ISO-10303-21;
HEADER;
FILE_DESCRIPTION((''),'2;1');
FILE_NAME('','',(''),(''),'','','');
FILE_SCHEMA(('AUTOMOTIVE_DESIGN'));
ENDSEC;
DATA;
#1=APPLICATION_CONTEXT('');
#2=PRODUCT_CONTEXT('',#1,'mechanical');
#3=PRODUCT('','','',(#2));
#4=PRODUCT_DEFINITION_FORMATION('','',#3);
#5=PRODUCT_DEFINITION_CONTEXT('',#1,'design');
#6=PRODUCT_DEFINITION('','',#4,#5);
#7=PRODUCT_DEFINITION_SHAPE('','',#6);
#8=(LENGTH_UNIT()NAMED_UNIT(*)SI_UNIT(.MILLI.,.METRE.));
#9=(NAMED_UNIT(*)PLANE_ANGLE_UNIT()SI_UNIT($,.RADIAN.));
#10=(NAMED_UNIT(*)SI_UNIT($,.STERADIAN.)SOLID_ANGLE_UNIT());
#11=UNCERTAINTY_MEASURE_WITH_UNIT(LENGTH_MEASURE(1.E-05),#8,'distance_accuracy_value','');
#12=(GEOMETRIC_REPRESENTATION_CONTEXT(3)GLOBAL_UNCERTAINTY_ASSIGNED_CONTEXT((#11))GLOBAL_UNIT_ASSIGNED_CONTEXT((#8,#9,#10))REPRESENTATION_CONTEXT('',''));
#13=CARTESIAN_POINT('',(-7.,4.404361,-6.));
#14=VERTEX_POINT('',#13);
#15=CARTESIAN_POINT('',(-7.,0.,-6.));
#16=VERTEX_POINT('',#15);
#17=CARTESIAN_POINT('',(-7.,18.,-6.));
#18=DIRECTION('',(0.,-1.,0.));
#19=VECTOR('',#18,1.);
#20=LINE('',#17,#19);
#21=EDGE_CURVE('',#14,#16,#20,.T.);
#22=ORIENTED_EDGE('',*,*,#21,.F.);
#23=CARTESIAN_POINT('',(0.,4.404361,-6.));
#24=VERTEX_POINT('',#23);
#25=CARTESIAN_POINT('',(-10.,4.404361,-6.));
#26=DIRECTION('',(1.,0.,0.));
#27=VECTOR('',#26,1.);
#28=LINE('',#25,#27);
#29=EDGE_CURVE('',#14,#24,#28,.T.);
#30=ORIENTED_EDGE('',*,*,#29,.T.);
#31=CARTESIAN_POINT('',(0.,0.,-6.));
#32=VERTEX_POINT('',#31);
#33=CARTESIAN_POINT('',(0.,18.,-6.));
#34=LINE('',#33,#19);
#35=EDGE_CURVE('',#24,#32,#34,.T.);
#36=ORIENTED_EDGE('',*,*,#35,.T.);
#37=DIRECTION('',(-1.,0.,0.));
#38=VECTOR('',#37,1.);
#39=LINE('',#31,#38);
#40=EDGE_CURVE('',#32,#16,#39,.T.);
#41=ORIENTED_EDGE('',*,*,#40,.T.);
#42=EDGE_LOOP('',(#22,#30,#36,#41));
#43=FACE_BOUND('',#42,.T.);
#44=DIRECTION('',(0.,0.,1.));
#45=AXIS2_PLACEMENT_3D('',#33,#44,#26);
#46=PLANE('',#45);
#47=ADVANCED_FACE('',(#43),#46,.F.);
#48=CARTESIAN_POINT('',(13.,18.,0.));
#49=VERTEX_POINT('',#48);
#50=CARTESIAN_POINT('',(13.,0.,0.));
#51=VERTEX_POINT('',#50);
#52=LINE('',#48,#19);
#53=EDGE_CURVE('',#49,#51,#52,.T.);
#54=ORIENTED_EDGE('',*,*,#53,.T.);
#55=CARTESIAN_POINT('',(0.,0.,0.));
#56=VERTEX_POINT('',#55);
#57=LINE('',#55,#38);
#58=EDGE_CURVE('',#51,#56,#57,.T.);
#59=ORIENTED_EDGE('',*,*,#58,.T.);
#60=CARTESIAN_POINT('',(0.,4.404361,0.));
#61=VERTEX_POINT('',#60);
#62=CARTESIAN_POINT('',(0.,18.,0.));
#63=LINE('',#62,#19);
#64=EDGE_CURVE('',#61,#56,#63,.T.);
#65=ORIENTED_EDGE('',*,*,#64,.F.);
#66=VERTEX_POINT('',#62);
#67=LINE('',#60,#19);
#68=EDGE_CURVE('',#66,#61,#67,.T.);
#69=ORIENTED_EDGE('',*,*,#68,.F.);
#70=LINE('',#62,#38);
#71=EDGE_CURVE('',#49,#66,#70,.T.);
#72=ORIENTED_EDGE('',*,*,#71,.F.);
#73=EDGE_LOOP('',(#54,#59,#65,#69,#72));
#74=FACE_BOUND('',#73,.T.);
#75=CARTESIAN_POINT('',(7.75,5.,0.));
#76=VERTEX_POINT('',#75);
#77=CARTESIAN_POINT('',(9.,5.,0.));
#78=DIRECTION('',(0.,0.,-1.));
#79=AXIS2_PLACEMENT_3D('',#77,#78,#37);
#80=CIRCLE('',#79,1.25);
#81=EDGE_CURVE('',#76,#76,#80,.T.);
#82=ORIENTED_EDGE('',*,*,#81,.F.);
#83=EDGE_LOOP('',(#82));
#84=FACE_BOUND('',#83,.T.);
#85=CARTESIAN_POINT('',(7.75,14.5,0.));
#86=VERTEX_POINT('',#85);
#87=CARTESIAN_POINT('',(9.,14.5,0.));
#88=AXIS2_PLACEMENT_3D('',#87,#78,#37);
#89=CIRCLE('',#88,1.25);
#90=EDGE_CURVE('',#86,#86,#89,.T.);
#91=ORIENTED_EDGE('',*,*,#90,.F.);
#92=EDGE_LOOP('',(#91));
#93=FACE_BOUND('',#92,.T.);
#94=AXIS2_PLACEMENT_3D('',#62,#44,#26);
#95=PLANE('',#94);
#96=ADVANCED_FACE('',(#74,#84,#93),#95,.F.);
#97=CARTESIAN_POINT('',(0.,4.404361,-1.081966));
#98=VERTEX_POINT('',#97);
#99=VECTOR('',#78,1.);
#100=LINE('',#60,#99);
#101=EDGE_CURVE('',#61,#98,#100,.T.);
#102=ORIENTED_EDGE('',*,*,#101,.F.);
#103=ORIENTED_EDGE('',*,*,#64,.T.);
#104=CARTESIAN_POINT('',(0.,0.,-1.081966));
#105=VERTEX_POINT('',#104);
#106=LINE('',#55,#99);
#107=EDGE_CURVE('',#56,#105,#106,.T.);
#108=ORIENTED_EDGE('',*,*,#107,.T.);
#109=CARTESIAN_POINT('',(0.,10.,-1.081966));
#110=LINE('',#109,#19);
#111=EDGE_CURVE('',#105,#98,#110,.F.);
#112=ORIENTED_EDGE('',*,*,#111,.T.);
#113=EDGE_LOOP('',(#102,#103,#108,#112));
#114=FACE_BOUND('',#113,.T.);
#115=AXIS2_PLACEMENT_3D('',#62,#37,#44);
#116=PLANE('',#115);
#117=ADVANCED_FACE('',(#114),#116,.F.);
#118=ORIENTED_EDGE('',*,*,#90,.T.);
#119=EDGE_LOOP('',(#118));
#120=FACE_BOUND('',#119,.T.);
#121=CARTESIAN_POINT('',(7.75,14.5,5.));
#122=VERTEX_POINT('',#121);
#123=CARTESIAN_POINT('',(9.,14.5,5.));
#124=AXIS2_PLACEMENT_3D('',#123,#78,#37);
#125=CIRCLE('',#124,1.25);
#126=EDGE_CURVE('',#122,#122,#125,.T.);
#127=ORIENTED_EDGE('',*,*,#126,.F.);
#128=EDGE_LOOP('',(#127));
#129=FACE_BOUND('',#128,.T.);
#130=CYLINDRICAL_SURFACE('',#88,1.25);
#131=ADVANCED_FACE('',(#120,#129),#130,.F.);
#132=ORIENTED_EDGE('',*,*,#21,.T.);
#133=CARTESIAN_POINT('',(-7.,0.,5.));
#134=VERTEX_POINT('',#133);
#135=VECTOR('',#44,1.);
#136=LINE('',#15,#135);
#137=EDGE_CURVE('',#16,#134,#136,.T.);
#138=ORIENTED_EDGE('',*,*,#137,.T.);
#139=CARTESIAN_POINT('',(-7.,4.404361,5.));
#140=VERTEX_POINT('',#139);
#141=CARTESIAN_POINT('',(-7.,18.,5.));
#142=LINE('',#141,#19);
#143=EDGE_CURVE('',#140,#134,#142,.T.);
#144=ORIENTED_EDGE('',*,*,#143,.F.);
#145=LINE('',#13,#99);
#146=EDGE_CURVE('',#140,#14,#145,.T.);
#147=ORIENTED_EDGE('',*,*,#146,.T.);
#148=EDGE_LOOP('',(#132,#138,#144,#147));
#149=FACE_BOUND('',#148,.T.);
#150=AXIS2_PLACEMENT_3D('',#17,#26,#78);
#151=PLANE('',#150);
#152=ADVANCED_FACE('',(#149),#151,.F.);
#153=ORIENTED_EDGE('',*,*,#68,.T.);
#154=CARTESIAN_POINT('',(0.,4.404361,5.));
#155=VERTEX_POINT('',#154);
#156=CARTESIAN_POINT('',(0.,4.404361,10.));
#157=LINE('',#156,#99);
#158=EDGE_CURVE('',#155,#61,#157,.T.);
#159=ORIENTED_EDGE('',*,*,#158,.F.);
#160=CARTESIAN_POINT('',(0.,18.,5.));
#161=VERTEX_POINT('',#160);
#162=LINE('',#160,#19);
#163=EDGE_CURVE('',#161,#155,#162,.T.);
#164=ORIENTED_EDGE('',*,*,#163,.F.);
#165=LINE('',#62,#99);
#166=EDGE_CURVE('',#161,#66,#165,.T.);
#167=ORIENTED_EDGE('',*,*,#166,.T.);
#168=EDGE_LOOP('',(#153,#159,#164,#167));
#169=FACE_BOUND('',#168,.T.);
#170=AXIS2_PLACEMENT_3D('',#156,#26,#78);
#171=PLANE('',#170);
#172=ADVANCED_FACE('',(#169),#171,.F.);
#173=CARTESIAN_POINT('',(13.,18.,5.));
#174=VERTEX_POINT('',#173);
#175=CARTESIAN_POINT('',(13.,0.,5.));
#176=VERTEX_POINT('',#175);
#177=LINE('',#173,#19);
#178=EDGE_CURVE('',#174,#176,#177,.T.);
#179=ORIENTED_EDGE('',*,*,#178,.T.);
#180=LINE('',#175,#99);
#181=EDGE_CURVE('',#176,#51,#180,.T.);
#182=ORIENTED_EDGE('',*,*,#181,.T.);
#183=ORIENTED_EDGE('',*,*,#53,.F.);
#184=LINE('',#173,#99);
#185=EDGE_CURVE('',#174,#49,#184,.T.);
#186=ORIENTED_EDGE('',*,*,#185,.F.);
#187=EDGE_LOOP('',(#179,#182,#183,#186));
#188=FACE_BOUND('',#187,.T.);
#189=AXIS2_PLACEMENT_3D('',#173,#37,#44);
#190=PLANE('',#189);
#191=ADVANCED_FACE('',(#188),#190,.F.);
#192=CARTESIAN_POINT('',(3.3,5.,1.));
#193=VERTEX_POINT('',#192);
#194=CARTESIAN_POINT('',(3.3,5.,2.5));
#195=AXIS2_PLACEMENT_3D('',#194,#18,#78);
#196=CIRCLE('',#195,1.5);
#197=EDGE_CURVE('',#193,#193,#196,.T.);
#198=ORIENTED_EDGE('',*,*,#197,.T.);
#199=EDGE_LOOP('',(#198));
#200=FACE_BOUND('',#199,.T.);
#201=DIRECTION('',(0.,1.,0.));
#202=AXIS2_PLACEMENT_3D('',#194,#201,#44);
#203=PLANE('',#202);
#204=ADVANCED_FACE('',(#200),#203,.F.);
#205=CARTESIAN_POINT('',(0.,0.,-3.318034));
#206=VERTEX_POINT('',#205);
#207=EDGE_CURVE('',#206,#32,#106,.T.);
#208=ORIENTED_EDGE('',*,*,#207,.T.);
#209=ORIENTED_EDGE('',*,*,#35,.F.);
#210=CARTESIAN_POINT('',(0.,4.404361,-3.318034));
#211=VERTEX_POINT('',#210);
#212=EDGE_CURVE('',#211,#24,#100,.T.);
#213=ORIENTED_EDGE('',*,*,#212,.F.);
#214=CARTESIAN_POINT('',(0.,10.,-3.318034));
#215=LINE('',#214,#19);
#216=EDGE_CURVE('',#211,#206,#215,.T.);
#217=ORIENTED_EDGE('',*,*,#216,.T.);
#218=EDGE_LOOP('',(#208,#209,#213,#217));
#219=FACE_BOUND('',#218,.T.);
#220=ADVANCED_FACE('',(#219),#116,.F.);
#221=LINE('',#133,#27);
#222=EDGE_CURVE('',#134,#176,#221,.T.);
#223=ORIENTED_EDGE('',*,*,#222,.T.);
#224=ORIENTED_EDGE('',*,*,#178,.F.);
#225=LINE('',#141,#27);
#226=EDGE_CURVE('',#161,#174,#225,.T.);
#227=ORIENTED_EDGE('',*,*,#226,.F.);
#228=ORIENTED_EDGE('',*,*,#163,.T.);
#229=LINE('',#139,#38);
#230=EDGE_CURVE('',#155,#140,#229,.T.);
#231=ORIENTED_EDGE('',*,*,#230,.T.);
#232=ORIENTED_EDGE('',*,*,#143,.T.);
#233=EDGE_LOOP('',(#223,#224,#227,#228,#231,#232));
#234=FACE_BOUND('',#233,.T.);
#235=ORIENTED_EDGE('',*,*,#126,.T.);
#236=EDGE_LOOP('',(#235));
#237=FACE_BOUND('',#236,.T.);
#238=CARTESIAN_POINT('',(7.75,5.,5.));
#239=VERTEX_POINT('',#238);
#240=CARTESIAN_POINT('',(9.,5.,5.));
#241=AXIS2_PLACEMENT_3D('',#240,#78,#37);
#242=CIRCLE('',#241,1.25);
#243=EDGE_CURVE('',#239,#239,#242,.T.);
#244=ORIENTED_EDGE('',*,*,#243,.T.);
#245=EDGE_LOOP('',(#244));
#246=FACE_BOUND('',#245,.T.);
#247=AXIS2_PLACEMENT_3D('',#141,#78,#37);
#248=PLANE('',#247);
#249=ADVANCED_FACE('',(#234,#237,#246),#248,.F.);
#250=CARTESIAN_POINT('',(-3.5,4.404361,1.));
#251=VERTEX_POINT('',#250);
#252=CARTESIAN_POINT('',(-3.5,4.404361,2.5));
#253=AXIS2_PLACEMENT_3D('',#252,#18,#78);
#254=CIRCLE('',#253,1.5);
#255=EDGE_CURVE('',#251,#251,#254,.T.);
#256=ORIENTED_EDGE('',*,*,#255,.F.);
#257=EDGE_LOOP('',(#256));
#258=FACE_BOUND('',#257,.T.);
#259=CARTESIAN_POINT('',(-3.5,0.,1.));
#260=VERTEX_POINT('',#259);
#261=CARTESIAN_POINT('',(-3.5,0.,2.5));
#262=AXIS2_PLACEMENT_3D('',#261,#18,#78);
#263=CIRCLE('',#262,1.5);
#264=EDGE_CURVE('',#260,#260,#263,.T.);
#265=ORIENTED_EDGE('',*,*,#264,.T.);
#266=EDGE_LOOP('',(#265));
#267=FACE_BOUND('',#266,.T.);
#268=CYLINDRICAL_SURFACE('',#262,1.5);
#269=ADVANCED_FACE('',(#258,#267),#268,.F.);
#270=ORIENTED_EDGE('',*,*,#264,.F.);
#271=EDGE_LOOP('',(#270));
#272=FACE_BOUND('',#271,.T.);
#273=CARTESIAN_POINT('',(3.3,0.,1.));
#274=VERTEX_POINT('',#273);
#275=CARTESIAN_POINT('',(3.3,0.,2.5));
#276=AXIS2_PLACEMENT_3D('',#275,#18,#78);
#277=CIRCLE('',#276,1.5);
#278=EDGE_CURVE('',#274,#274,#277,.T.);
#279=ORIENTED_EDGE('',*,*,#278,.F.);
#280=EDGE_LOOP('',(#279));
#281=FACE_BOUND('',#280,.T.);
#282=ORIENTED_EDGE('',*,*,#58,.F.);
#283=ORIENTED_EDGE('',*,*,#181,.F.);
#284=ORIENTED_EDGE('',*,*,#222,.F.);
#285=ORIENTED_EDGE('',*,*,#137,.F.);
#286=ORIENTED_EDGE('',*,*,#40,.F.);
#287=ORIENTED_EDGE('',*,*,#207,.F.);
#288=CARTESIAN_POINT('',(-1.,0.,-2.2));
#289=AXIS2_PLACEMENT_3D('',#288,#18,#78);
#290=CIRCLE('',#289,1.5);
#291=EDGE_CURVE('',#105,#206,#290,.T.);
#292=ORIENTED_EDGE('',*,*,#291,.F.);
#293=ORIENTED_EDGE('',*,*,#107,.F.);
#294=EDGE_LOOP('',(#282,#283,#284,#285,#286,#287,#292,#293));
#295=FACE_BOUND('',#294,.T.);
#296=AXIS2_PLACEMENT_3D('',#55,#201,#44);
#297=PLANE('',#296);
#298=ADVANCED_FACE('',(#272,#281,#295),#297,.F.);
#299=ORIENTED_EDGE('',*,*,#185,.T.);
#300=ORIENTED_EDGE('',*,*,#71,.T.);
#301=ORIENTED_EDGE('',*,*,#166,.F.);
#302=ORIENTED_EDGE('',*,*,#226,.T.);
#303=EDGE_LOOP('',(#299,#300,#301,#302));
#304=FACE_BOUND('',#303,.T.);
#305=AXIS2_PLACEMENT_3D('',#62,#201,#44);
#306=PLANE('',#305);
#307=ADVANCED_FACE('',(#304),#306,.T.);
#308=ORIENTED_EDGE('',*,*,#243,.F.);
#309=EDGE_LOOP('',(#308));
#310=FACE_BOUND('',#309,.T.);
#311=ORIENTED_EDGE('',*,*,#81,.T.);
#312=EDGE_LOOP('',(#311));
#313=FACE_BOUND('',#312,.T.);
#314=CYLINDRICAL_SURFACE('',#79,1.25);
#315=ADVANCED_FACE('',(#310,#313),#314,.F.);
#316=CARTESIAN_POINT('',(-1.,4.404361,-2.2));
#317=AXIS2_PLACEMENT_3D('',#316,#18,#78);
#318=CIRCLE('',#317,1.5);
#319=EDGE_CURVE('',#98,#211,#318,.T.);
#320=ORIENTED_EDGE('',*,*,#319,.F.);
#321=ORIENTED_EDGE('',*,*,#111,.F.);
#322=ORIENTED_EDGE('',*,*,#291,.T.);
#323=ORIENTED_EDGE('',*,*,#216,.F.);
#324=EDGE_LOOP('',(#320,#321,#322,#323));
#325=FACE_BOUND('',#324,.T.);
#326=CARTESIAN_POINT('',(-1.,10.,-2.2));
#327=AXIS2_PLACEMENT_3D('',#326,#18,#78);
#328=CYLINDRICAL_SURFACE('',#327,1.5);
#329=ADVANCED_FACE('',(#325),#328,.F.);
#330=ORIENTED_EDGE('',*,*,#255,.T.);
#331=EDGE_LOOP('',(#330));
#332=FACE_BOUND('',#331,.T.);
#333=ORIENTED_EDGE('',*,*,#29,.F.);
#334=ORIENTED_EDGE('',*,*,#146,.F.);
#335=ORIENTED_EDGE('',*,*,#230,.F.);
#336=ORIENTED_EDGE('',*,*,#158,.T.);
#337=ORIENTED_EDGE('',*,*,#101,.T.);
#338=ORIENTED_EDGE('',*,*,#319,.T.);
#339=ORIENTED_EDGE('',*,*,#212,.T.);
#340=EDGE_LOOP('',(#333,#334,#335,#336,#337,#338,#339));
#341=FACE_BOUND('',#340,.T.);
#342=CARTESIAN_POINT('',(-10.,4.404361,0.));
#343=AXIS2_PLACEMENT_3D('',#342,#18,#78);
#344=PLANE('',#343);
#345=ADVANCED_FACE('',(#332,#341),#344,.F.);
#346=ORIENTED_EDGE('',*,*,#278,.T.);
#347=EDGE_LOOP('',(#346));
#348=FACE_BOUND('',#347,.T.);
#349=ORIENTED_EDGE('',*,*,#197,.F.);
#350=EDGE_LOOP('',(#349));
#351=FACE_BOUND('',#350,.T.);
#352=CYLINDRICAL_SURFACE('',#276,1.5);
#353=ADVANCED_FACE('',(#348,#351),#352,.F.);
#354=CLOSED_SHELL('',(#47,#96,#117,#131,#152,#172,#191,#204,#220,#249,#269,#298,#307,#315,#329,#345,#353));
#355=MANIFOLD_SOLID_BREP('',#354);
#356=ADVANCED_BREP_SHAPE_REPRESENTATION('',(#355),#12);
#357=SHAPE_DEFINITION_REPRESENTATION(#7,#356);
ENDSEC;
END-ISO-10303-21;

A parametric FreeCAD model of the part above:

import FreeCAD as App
import Part
import Sketcher
from FreeCAD import Vector

doc = App.newDocument("Part")
body = doc.addObject("PartDesign::Body", "Body")

# Sketch on XZ plane
sketch1 = body.newObject("Sketcher::SketchObject", "Sketch")
sketch1.AttachmentSupport = (doc.getObject("XZ_Plane"), [""])
sketch1.MapMode = "FlatFace"
sketch1.addGeometry([
    Part.LineSegment(Vector(0, 0, 0), Vector(0, -6, 0)),  # 0
    Part.LineSegment(Vector(0, -6, 0), Vector(-7, -6, 0)),  # 1
    Part.LineSegment(Vector(-7, -6, 0), Vector(-7, 5, 0)),  # 2
    Part.LineSegment(Vector(-7, 5, 0), Vector(13, 5, 0)),  # 3
    Part.LineSegment(Vector(13, 5, 0), Vector(13, 0, 0)),  # 4
    Part.LineSegment(Vector(13, 0, 0), Vector(0, 0, 0)),  # 5
], False)
sketch1.addConstraint([
    Sketcher.Constraint("Coincident", 0, 2, 1, 1),
    Sketcher.Constraint("Coincident", 1, 2, 2, 1),
    Sketcher.Constraint("Coincident", 2, 2, 3, 1),
    Sketcher.Constraint("Coincident", 3, 2, 4, 1),
    Sketcher.Constraint("Coincident", 4, 2, 5, 1),
    Sketcher.Constraint("Coincident", 5, 2, 0, 1),
    Sketcher.Constraint("Vertical", 0),
    Sketcher.Constraint("Horizontal", 1),
    Sketcher.Constraint("Vertical", 2),
    Sketcher.Constraint("Horizontal", 3),
    Sketcher.Constraint("Vertical", 4),
    Sketcher.Constraint("Horizontal", 5),
    Sketcher.Constraint("Coincident", 5, 2, -1, 1),
    Sketcher.Constraint("DistanceX", 1, 2, 1, 1, 7.0),
    Sketcher.Constraint("DistanceX", 3, 1, 3, 2, 20.0),
    Sketcher.Constraint("DistanceY", 0, 2, 0, 1, 6.0),
    Sketcher.Constraint("DistanceY", 2, 1, 2, 2, 11.0),
])
pad1 = body.newObject("PartDesign::Pad", "Pad")
pad1.Profile = sketch1
pad1.Length = 18
pad1.Reversed = True

# Sketch on YZ plane
sketch2 = body.newObject("Sketcher::SketchObject", "Sketch001")
sketch2.AttachmentSupport = (doc.getObject("YZ_Plane"), [""])
sketch2.MapMode = "FlatFace"
sketch2.addGeometry([
    Part.LineSegment(Vector(18, 0, 0), Vector(4, 0, 0)),
    Part.LineSegment(Vector(4, 0, 0), Vector(4, -6, 0)),
    Part.LineSegment(Vector(4, -6, 0), Vector(18, -6, 0)),
    Part.LineSegment(Vector(18, -6, 0), Vector(18, 0, 0)),
], False)
sketch2.addConstraint([
    Sketcher.Constraint("Coincident", 0, 2, 1, 1),
    Sketcher.Constraint("Coincident", 1, 2, 2, 1),
    Sketcher.Constraint("Coincident", 2, 2, 3, 1),
    Sketcher.Constraint("Coincident", 3, 2, 0, 1),
    Sketcher.Constraint("Horizontal", 0),
    Sketcher.Constraint("Vertical", 1),
    Sketcher.Constraint("Horizontal", 2),
    Sketcher.Constraint("Vertical", 3),
    Sketcher.Constraint("PointOnObject", 0, 2, -1),
    Sketcher.Constraint("DistanceY", 1, 2, 1, 1, 6.0),
    Sketcher.Constraint("DistanceX", -1, 1, 2, 2, 18.0),
    Sketcher.Constraint("DistanceX", 0, 2, 0, 1, 13.595639),
])
pocket1 = body.newObject("PartDesign::Pocket", "Pocket")
pocket1.Profile = sketch2
pocket1.Length = 10

# Sketch on XY plane
sketch3 = body.newObject("Sketcher::SketchObject", "Sketch002")
sketch3.AttachmentSupport = (doc.getObject("XY_Plane"), [""])
sketch3.MapMode = "FlatFace"
sketch3.addGeometry([
    Part.LineSegment(Vector(0, 18, 0), Vector(0, 4, 0)),
    Part.LineSegment(Vector(0, 4, 0), Vector(-7, 4, 0)),
    Part.LineSegment(Vector(-7, 4, 0), Vector(-7, 18, 0)),
    Part.LineSegment(Vector(-7, 18, 0), Vector(0, 18, 0)),
], False)
sketch3.addConstraint([
    Sketcher.Constraint("Coincident", 0, 2, 1, 1),
    Sketcher.Constraint("Coincident", 1, 2, 2, 1),
    Sketcher.Constraint("Coincident", 2, 2, 3, 1),
    Sketcher.Constraint("Coincident", 3, 2, 0, 1),
    Sketcher.Constraint("Vertical", 0),
    Sketcher.Constraint("Horizontal", 1),
    Sketcher.Constraint("Vertical", 2),
    Sketcher.Constraint("Horizontal", 3),
    Sketcher.Constraint("PointOnObject", 0, 2, -2),
    Sketcher.Constraint("DistanceX", 1, 2, 1, 1, 7.0),
    Sketcher.Constraint("DistanceY", -1, 1, 2, 2, 18.0),
    Sketcher.Constraint("DistanceY", 0, 2, 0, 1, 13.595639),
])
pocket2 = body.newObject("PartDesign::Pocket", "Pocket001")
pocket2.Profile = sketch3
pocket2.Length = 10
pocket2.Reversed = True

# Sketch on XZ plane
sketch4 = body.newObject("Sketcher::SketchObject", "Sketch003")
sketch4.AttachmentSupport = (doc.getObject("XZ_Plane"), [""])
sketch4.MapMode = "FlatFace"
sketch4.addGeometry(Part.Circle(Vector(-1, -2.2, 0), Vector(0, 0, 1), 1.5), False)
sketch4.addConstraint([
    Sketcher.Constraint("Diameter", 0, 3.0),
    Sketcher.Constraint("DistanceX", 0, 3, -1, 1, 1.0),
    Sketcher.Constraint("DistanceY", 0, 3, -1, 1, 2.2),
])
pocket3 = body.newObject("PartDesign::Pocket", "Pocket002")
pocket3.Profile = sketch4
pocket3.Length = 10

# Sketch on XZ plane
sketch5 = body.newObject("Sketcher::SketchObject", "Sketch004")
sketch5.AttachmentSupport = (doc.getObject("XZ_Plane"), [""])
sketch5.MapMode = "FlatFace"
sketch5.addGeometry([
    Part.Circle(Vector(3.3, 2.5, 0), Vector(0, 0, 1), 1.5),
    Part.Circle(Vector(-3.5, 2.5, 0), Vector(0, 0, 1), 1.5),
], False)
sketch5.addConstraint([
    Sketcher.Constraint("Equal", 0, 1),
    Sketcher.Constraint("Horizontal", 0, 3, 1, 3),
    Sketcher.Constraint("Diameter", 0, 3.0),
    Sketcher.Constraint("DistanceX", -1, 1, 0, 3, 3.3),
    Sketcher.Constraint("DistanceY", -1, 1, 0, 3, 2.5),
    Sketcher.Constraint("DistanceX", 1, 3, -1, 1, 3.5),
])
doc.recompute()
hole = body.newObject("PartDesign::Hole", "Hole")
hole.Profile = sketch5
hole.ThreadType = "None"
hole.Diameter = 3
hole.DepthType = "Dimension"
hole.Depth = 5
hole.DrillPoint = "Flat"

# Sketch on XY plane
sketch6 = body.newObject("Sketcher::SketchObject", "Sketch005")
sketch6.AttachmentSupport = (doc.getObject("XY_Plane"), [""])
sketch6.MapMode = "FlatFace"
sketch6.addGeometry([
    Part.Circle(Vector(9, 14.5, 0), Vector(0, 0, 1), 1.2),
    Part.Circle(Vector(9, 5, 0), Vector(0, 0, 1), 1.2),
], False)
sketch6.addConstraint([
    Sketcher.Constraint("Equal", 0, 1),
    Sketcher.Constraint("Vertical", 0, 3, 1, 3),
    Sketcher.Constraint("Diameter", 0, 2.5),
    Sketcher.Constraint("DistanceX", -1, 1, 0, 3, 9.0),
    Sketcher.Constraint("DistanceY", -1, 1, 1, 3, 5.0),
    Sketcher.Constraint("DistanceY", -1, 1, 0, 3, 14.5),
])
doc.recompute()
hole2 = body.newObject("PartDesign::Hole", "Hole001")
hole2.Profile = sketch6
hole2.ThreadType = "None"
hole2.Diameter = 2.5
hole2.DepthType = "Dimension"
hole2.Depth = 6.5
hole2.DrillPoint = "Flat"
hole2.Reversed = True

doc.recompute()
